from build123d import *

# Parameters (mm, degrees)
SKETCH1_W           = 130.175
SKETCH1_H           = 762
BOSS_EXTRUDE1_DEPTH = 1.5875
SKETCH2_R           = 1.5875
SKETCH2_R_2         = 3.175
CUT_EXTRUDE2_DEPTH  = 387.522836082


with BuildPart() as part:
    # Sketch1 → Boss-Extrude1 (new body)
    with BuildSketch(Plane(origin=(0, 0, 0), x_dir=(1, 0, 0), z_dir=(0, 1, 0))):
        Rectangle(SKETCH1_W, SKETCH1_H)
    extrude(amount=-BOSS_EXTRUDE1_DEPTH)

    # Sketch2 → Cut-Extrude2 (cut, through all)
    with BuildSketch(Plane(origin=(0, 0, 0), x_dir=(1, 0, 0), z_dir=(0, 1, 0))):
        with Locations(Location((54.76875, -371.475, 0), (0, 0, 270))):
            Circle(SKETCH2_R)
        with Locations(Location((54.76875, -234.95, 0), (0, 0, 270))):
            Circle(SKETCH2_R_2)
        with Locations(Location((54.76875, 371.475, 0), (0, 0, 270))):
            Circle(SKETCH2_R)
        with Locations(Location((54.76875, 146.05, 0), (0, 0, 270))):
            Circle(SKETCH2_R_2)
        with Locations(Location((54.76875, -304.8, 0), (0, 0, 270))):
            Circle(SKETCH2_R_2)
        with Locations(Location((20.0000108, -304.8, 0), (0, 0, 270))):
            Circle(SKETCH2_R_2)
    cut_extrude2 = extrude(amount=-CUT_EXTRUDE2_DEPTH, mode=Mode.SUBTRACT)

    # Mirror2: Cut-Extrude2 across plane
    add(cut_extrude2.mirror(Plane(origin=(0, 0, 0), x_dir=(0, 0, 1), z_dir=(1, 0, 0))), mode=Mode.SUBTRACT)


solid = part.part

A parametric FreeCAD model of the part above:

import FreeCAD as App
import Part
import Sketcher
Q = App.Units.Quantity


def add_polygon(sketch, points):
    """Adds a closed chain of lines whose ends are joined by coincident constraints."""
    first, n = sketch.GeometryCount, len(points)
    for a, b in zip(points, points[1:] + points[:1]):
        sketch.addGeometry(Part.LineSegment(App.Vector(*a, 0), App.Vector(*b, 0)), False)
    for i in range(n):
        sketch.addConstraint(Sketcher.Constraint("Coincident", first + i, 2, first + (i + 1) % n, 1))

doc = App.newDocument("Part")
body = doc.addObject("PartDesign::Body", "Body")

sketch1 = doc.addObject("Sketcher::SketchObject", "Sketch")
body.addObject(sketch1)
sketch1.AttachmentSupport = (doc.XZ_Plane, [""])
sketch1.MapMode = "FlatFace"
add_polygon(sketch1, [(-65, -381), (-65, 381), (65, 381), (65, -381)])
sketch1.addConstraint([
    Sketcher.Constraint("Vertical", 0),
    Sketcher.Constraint("Horizontal", 1),
    Sketcher.Constraint("Vertical", 2),
    Sketcher.Constraint("Horizontal", 3),
    Sketcher.Constraint("Symmetric", 0, 2, 2, 2, -1, 1),
    Sketcher.Constraint("DistanceY", 0, 1, 0, 2, Q("30 in")),
    Sketcher.Constraint("DistanceX", 1, 1, 1, 2, Q("5.125 in")),
])
pad1 = doc.addObject("PartDesign::Pad", "Pad")
body.addObject(pad1)
pad1.Profile = sketch1
pad1.Length = Q("0.0625 in")

sketch2 = doc.addObject("Sketcher::SketchObject", "Sketch001")
body.addObject(sketch2)
sketch2.AttachmentSupport = (doc.XZ_Plane, [""])
sketch2.MapMode = "FlatFace"
sketch2.addGeometry([
    Part.Circle(App.Vector(54.8, 371.5, 0), App.Vector(0, 0, 1), 1.6),
    Part.Circle(App.Vector(54.8, 234.9, 0), App.Vector(0, 0, 1), 3.2),
    Part.Circle(App.Vector(54.8, -371.5, 0), App.Vector(0, 0, 1), 1.6),
    Part.Circle(App.Vector(54.8, -146.1, 0), App.Vector(0, 0, 1), 3.2),
    Part.Circle(App.Vector(54.8, 304.8, 0), App.Vector(0, 0, 1), 3.2),
    Part.Circle(App.Vector(20, 304.8, 0), App.Vector(0, 0, 1), 3.2),
], False)
sketch2.addConstraint([
    Sketcher.Constraint("Equal", 0, 2),
    Sketcher.Constraint("Equal", 1, 3),
    Sketcher.Constraint("Equal", 3, 4),
    Sketcher.Constraint("Equal", 4, 5),
    Sketcher.Constraint("Symmetric", 0, 3, 2, 3, -1),
    Sketcher.Constraint("Horizontal", 4, 3, 5, 3),
    Sketcher.Constraint("Vertical", 0, 3, 1, 3),
    Sketcher.Constraint("Vertical", 2, 3, 3, 3),
    Sketcher.Constraint("Vertical", 3, 3, 4, 3),
    Sketcher.Constraint("Diameter", 1, Q("0.25 in")),
    Sketcher.Constraint("Diameter", 0, Q("0.125 in")),
    Sketcher.Constraint("DistanceY", -1, 1, 4, 3, Q("12 in")),
    Sketcher.Constraint("DistanceY", 3, 3, 1, 3, Q("15 in")),
    Sketcher.Constraint("DistanceY", -1, 1, 1, 3, Q("9.25 in")),
    Sketcher.Constraint("DistanceY", 2, 3, 0, 3, Q("29.25 in")),
    Sketcher.Constraint("DistanceX", -1, 1, 0, 3, Q("2.15625 in")),
    Sketcher.Constraint("DistanceX", -1, 1, 5, 3, Q("20.000011 mm")),
])
pocket1 = doc.addObject("PartDesign::Pocket", "Pocket")
body.addObject(pocket1)
pocket1.Profile = sketch2
pocket1.Type = "ThroughAll"
pocket1.Reversed = True
doc.recompute()

mirrored = doc.addObject("PartDesign::Mirrored", "Mirrored")
body.addObject(mirrored)
mirrored.Originals = [pocket1]
mirrored.MirrorPlane = (doc.YZ_Plane, [""])
body.Tip = mirrored

doc.recompute()
